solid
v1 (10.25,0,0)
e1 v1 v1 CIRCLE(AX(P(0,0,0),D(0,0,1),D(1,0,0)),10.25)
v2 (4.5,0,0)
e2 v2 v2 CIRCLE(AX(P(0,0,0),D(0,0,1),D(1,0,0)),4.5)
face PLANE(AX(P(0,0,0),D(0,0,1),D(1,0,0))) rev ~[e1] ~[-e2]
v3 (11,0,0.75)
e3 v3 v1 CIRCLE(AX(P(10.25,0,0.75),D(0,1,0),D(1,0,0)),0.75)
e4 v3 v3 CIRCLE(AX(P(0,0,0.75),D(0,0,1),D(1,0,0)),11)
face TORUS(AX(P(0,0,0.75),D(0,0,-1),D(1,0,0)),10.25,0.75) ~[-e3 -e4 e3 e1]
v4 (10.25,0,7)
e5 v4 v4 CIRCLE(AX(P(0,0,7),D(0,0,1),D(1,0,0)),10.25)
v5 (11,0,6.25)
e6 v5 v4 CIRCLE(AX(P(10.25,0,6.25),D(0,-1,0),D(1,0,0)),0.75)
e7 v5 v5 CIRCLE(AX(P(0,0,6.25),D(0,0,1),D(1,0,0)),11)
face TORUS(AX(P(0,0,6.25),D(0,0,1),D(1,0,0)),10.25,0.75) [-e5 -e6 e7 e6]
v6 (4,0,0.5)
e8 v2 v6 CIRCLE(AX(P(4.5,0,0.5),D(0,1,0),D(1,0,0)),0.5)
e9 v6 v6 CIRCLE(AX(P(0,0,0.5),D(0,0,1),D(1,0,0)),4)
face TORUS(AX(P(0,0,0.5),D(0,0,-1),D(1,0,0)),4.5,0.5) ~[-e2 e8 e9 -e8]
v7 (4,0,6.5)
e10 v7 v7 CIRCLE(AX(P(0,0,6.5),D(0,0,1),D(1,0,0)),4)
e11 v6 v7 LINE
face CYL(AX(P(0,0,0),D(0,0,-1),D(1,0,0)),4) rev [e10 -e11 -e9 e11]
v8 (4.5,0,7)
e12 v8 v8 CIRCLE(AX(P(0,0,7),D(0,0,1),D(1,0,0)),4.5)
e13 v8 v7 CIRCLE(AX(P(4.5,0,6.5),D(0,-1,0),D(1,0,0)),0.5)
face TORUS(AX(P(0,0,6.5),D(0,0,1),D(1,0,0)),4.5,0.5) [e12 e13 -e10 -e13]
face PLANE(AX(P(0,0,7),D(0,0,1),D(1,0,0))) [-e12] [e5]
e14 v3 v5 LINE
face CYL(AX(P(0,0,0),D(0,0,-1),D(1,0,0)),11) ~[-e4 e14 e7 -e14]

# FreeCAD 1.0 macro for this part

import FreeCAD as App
import Part
import Sketcher

V = App.Vector
Q = App.Units.Quantity


def edges_at(feature, points):
    """Names of the edges that pass closest to the given points."""
    edges = feature.Shape.Edges
    near = lambda p: min(range(len(edges)), key=lambda i: edges[i].distToShape(Part.Vertex(*p))[0])
    return sorted({f"Edge{near(p) + 1}" for p in points})

doc = App.newDocument("Part")
body = doc.addObject("PartDesign::Body", "Body")

# Sketch on XY plane
sketch1 = body.newObject("Sketcher::SketchObject", "Sketch")
sketch1.AttachmentSupport = (doc.getObject("XY_Plane"), [""])
sketch1.MapMode = "FlatFace"
sketch1.addGeometry(Part.Circle(V(0, 0, 0), V(0, 0, 1), 11), False)
sketch1.addGeometry(Part.Circle(V(0, 0, 0), V(0, 0, 1), 4), False)
sketch1.addConstraint(Sketcher.Constraint("Coincident", 0, 3, -1, 1))
sketch1.addConstraint(Sketcher.Constraint("Coincident", 1, 3, -1, 1))
sketch1.addConstraint(Sketcher.Constraint("Diameter", 0, Q("22 mm")))
sketch1.addConstraint(Sketcher.Constraint("Diameter", 1, Q("8 mm")))
pad1 = body.newObject("PartDesign::Pad", "Pad")
pad1.Profile = sketch1
pad1.Length = 7
doc.recompute()

fillet = body.newObject("PartDesign::Fillet", "Fillet")
fillet.Base = (pad1, edges_at(pad1, [(-10.256, -3.978, 7), (-10.256, -3.978, 0)]))
fillet.Radius = 0.75
doc.recompute()

fillet2 = body.newObject("PartDesign::Fillet", "Fillet001")
fillet2.Base = (fillet, edges_at(fillet, [(-3.729, 1.446, 7), (-3.729, 1.446, 0)]))
fillet2.Radius = 0.5

doc.recompute()
